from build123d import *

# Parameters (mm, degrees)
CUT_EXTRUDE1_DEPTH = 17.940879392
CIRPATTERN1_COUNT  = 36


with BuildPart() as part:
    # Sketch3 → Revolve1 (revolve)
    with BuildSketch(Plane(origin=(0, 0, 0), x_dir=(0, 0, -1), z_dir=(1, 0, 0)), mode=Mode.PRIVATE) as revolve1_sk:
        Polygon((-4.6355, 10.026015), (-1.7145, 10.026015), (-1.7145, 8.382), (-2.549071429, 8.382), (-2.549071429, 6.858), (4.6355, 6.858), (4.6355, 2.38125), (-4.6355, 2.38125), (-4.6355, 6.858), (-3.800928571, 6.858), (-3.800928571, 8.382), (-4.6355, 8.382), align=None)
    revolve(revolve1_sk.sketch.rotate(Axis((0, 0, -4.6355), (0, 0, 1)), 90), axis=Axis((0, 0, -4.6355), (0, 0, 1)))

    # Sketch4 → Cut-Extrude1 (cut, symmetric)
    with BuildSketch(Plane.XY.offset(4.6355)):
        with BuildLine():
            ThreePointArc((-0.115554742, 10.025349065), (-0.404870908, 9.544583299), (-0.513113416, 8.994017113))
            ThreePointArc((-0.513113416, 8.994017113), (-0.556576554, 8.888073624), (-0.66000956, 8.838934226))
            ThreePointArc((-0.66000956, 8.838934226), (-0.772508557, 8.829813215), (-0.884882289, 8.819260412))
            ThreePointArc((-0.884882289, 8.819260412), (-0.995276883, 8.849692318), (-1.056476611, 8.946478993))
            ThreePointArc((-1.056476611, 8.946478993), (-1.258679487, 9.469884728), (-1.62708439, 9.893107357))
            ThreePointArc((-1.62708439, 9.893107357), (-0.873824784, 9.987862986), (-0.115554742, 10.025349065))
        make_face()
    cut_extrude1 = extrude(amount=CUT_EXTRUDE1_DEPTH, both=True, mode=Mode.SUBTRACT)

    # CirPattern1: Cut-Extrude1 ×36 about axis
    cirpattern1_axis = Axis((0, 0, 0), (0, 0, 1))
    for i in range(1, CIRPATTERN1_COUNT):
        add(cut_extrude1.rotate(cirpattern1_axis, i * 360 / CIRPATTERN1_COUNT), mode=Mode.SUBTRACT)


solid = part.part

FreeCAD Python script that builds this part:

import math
import FreeCAD as App
import Part
import Sketcher
from FreeCAD import Vector
Q = App.Units.Quantity


def add_polygon(sketch, points):
    """Adds a closed chain of lines whose ends are joined by coincident constraints."""
    first, n = sketch.GeometryCount, len(points)
    for a, b in zip(points, points[1:] + points[:1]):
        sketch.addGeometry(Part.LineSegment(App.Vector(*a, 0), App.Vector(*b, 0)), False)
    for i in range(n):
        sketch.addConstraint(Sketcher.Constraint("Coincident", first + i, 2, first + (i + 1) % n, 1))

doc = App.newDocument("Part")
params = doc.addObject("Spreadsheet::Sheet", "Params")
for row, (alias, value) in enumerate([
    ("sketch1_width", "0.06 in"),
    ("sketch1_height", "0.115 in"),
    ("sketch1_height2", "0.365 in"),
    ("revolution_angle", "360 deg"),
    ("pocket1_length", "35.881759 mm"),
], start=1):
    params.set(f"A{row}", alias)
    params.set(f"B{row}", "=" + value)
    params.setAlias(f"B{row}", alias)

body = doc.addObject("PartDesign::Body", "Body")

# Sketch on YZ plane
sketch1 = doc.addObject("Sketcher::SketchObject", "Sketch")
body.addObject(sketch1)
sketch1.AttachmentSupport = (doc.YZ_Plane, [""])
sketch1.MapMode = "FlatFace"
add_polygon(sketch1, [(10.026015, 1.7145), (10.026015, 4.6355), (8.382, 4.6355), (8.382, 3.800929), (6.858, 3.800929), (6.858, 4.6355), (2.38125, 4.6355), (2.38125, -4.6355), (6.858, -4.6355), (6.858, 2.549071), (8.382, 2.549071), (8.382, 1.7145)])  # lines 0-11
sketch1.addConstraint([
    Sketcher.Constraint("Vertical", 0),
    Sketcher.Constraint("Horizontal", 1),
    Sketcher.Constraint("Vertical", 2),
    Sketcher.Constraint("Horizontal", 3),
    Sketcher.Constraint("Vertical", 4),
    Sketcher.Constraint("Horizontal", 5),
    Sketcher.Constraint("Vertical", 6),
    Sketcher.Constraint("Horizontal", 7),
    Sketcher.Constraint("Vertical", 8),
    Sketcher.Constraint("Horizontal", 9),
    Sketcher.Constraint("Vertical", 10),
    Sketcher.Constraint("Horizontal", 11),
    Sketcher.Constraint("Symmetric", 4, 2, 7, 2, -1),
    Sketcher.Constraint("Horizontal", 1, 2, 4, 2),
    Sketcher.Constraint("Vertical", 2, 2, 9, 2),
    Sketcher.Constraint("Equal", 4, 10),
    Sketcher.Constraint("DistanceX", 3, 2, 3, 1, Q("0.06 in")),
    Sketcher.Constraint("DistanceY", 0, 1, 0, 2, Q("0.115 in")),
    Sketcher.Constraint("DistanceY", 6, 2, 6, 1, Q("0.365 in")),
    Sketcher.Constraint("DistanceX", -1, 1, 1, 2, Q("0.33 in")),
    Sketcher.Constraint("DistanceX", -1, 1, 5, 2, Q("0.09375 in")),
    Sketcher.Constraint("DistanceY", 2, 2, 2, 1, Q("0.834571 mm")),
    Sketcher.Constraint("DistanceX", 1, 2, 1, 1, Q("1.644015 mm")),
])
sketch1.setExpression("Constraints[28]", "Params.sketch1_width")
sketch1.setExpression("Constraints[29]", "Params.sketch1_height")
sketch1.setExpression("Constraints[30]", "Params.sketch1_height2")
revolution = doc.addObject("PartDesign::Revolution", "Revolution")
body.addObject(revolution)
revolution.Profile = sketch1
revolution.ReferenceAxis = (sketch1, ["V_Axis"])
revolution.setExpression("Angle", "Params.revolution_angle")

# Sketch on XY plane
sketch2 = doc.addObject("Sketcher::SketchObject", "Sketch001")
body.addObject(sketch2)
sketch2.AttachmentSupport = (doc.XY_Plane, [""])
sketch2.MapMode = "FlatFace"
sketch2.AttachmentOffset = App.Placement(Vector(0, 0, 0.1825 * 25.4), App.Rotation())
sketch2.addGeometry([
    Part.ArcOfCircle(Part.Circle(Vector(1.108924, 8.961045, 0), Vector(0, 0, 1), 1.622372), math.radians(139.003153), math.radians(178.835459)),  # 0
    Part.ArcOfCircle(Part.Circle(Vector(0, 0, 0), Vector(0, 0, 1), 10.026015), math.radians(90.660377), math.radians(99.339623)),  # 1
    Part.ArcOfCircle(Part.Circle(Vector(-2.648146, 8.632344, 0), Vector(0, 0, 1), 1.622372), math.radians(11.164541), math.radians(50.996847)),  # 2
    Part.ArcOfCircle(Part.Circle(Vector(-0.900731, 8.977217, 0), Vector(0, 0, 1), 0.15875), math.radians(-168.835459), math.radians(-84.270392)),  # 3
    Part.ArcOfCircle(Part.Circle(Vector(0, 0.000005, 0), Vector(0, 0, 1), 8.863537), math.radians(94.270391), math.radians(95.729608)),  # 4
    Part.ArcOfCircle(Part.Circle(Vector(-0.671831, 8.997243, 0), Vector(0, 0, 1), 0.15875), math.radians(-85.729607), math.radians(-1.164542)),  # 5
], False)
sketch2.addConstraint([
    Sketcher.Constraint("Coincident", 0, 1, 1, 1),
    Sketcher.Constraint("Coincident", 1, 2, 2, 2),
    Sketcher.Constraint("Tangent", 2, 1, 3, 1),
    Sketcher.Constraint("Tangent", 3, 2, 4, 2),
    Sketcher.Constraint("Tangent", 4, 1, 5, 1),
    Sketcher.Constraint("Tangent", 5, 2, 0, 2),
    Sketcher.Constraint("Coincident", 1, 3, -1, 1),
    Sketcher.Constraint("Coincident", 4, 3, -1, 1),
    Sketcher.Constraint("Equal", 0, 2),
    Sketcher.Constraint("Equal", 3, 5),
    Sketcher.Constraint("Radius", 3, Q("0.15875 mm")),
    Sketcher.Constraint("Radius", 0, Q("1.622372 mm")),
    Sketcher.Constraint("Radius", 1, Q("10.026015 mm")),
    Sketcher.Constraint("Radius", 4, Q("8.863537 mm")),
    Sketcher.Constraint("DistanceY", 2, 3, 0, 3, Q("0.328701 mm")),
    Sketcher.Constraint("DistanceX", 3, 3, 5, 3, Q("0.2289 mm")),
    Sketcher.Constraint("DistanceY", 0, 3, 5, 3, Q("0.036199 mm")),
    Sketcher.Constraint("DistanceY", 3, 3, 5, 2, Q("0.0168 mm")),
])
pocket1 = doc.addObject("PartDesign::Pocket", "Pocket")
body.addObject(pocket1)
pocket1.Profile = sketch2
pocket1.setExpression("Length", "Params.pocket1_length")
pocket1.Midplane = True
doc.recompute()

polarpattern = doc.addObject("PartDesign::PolarPattern", "PolarPattern")
body.addObject(polarpattern)
polarpattern.Originals = [pocket1]
polarpattern.Axis = (doc.Z_Axis, [""])
polarpattern.Angle = 360
polarpattern.Occurrences = 36
body.Tip = polarpattern

doc.recompute()
